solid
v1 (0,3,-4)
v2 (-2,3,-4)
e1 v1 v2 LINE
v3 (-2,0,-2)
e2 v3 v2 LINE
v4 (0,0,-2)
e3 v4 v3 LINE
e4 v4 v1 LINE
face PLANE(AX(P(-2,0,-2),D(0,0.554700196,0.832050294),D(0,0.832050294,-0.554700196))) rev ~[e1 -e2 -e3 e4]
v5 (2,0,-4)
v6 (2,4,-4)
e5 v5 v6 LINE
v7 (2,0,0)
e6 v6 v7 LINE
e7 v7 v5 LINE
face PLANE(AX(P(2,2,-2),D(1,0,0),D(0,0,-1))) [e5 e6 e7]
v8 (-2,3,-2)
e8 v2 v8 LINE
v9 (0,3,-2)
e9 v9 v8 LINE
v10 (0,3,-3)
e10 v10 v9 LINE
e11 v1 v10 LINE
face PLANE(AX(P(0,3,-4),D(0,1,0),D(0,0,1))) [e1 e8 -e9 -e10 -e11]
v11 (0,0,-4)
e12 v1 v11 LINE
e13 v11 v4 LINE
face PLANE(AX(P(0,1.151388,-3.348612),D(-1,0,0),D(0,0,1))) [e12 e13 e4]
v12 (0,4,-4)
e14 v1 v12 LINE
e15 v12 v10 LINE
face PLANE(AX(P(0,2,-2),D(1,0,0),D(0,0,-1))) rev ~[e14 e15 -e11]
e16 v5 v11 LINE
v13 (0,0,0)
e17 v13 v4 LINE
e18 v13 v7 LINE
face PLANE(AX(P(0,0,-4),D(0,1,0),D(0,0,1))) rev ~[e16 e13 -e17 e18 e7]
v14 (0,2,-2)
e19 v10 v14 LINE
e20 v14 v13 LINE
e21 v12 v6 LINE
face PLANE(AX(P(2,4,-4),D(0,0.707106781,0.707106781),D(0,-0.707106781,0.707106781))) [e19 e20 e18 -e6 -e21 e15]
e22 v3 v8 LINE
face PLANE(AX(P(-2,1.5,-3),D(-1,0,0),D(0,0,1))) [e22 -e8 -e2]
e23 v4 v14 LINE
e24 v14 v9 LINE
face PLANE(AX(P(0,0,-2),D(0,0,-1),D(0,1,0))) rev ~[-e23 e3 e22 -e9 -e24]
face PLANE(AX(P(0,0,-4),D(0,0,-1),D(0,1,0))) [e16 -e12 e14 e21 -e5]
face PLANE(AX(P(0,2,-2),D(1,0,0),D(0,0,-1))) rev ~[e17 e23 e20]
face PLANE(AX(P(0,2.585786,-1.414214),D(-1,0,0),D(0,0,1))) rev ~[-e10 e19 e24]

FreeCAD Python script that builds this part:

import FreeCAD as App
import Part
import Sketcher

V = App.Vector

doc = App.newDocument("Part")
params = doc.addObject("Spreadsheet::Sheet", "Params")
for row, (alias, value) in enumerate([
    ("sketch1_width", "4 mm"),
    ("pad1_length", "2 mm"),
    ("sketch2_width", "3 mm"),
    ("sketch2_height", "2 mm"),
    ("pad2_length", "2 mm"),
    ("sketch3_width", "3 mm"),
    ("sketch3_height", "2 mm"),
    ("pocket1_length", "2 mm"),
    ("sketch4_width", "4 mm"),
    ("pocket2_length", "2 mm"),
], start=1):
    params.set(f"A{row}", alias)
    params.set(f"B{row}", "=" + value)
    params.setAlias(f"B{row}", alias)

body = doc.addObject("PartDesign::Body", "Body")

# Sketch on YZ plane
sketch1 = body.newObject("Sketcher::SketchObject", "Sketch")
sketch1.AttachmentSupport = (doc.getObject("YZ_Plane"), [""])
sketch1.MapMode = "FlatFace"
sketch1.addGeometry([
    Part.LineSegment(V(4, 0, 0), V(0, 0, 0)),
    Part.LineSegment(V(0, 0, 0), V(0, -4, 0)),
    Part.LineSegment(V(0, -4, 0), V(4, -4, 0)),
    Part.LineSegment(V(4, -4, 0), V(4, 0, 0)),
], False)
sketch1.addConstraint([
    Sketcher.Constraint("Coincident", 0, 2, 1, 1),
    Sketcher.Constraint("Coincident", 1, 2, 2, 1),
    Sketcher.Constraint("Coincident", 2, 2, 3, 1),
    Sketcher.Constraint("Coincident", 3, 2, 0, 1),
    Sketcher.Constraint("Horizontal", 0),
    Sketcher.Constraint("Vertical", 1),
    Sketcher.Constraint("Horizontal", 2),
    Sketcher.Constraint("Vertical", 3),
    Sketcher.Constraint("Coincident", 0, 2, -1, 1),
    Sketcher.Constraint("Equal", 2, 1),
    Sketcher.Constraint("DistanceX", 0, 2, 0, 1, 4.0),
])
sketch1.setExpression("Constraints[10]", "Params.sketch1_width")
pad1 = body.newObject("PartDesign::Pad", "Pad")
pad1.Profile = sketch1
pad1.setExpression("Length", "Params.pad1_length")

# Sketch on YZ plane
sketch2 = body.newObject("Sketcher::SketchObject", "Sketch001")
sketch2.AttachmentSupport = (doc.getObject("YZ_Plane"), [""])
sketch2.MapMode = "FlatFace"
sketch2.addGeometry([
    Part.LineSegment(V(3, -4, 0), V(0, -4, 0)),
    Part.LineSegment(V(0, -4, 0), V(0, -2, 0)),
    Part.LineSegment(V(0, -2, 0), V(3, -2, 0)),
    Part.LineSegment(V(3, -2, 0), V(3, -4, 0)),
], False)
sketch2.addConstraint([
    Sketcher.Constraint("Coincident", 0, 2, 1, 1),
    Sketcher.Constraint("Coincident", 1, 2, 2, 1),
    Sketcher.Constraint("Coincident", 2, 2, 3, 1),
    Sketcher.Constraint("Coincident", 3, 2, 0, 1),
    Sketcher.Constraint("Horizontal", 0),
    Sketcher.Constraint("Vertical", 1),
    Sketcher.Constraint("Horizontal", 2),
    Sketcher.Constraint("Vertical", 3),
    Sketcher.Constraint("PointOnObject", 0, 2, -2),
    Sketcher.Constraint("DistanceX", 0, 2, 0, 1, 3.0),
    Sketcher.Constraint("DistanceY", 1, 1, 1, 2, 2.0),
    Sketcher.Constraint("DistanceY", 0, 2, -1, 1, 4.0),
])
sketch2.setExpression("Constraints[9]", "Params.sketch2_width")
sketch2.setExpression("Constraints[10]", "Params.sketch2_height")
pad2 = body.newObject("PartDesign::Pad", "Pad001")
pad2.Profile = sketch2
pad2.setExpression("Length", "Params.pad2_length")
pad2.Reversed = True

# Sketch on YZ plane
sketch3 = body.newObject("Sketcher::SketchObject", "Sketch002")
sketch3.AttachmentSupport = (doc.getObject("YZ_Plane"), [""])
sketch3.MapMode = "FlatFace"
sketch3.AttachmentOffset = App.Placement(V(0, 0, -2), App.Rotation())
sketch3.addGeometry([
    Part.LineSegment(V(0, -2, 0), V(3, -4, 0)),
    Part.LineSegment(V(3, -4, 0), V(0, -4, 0)),
    Part.LineSegment(V(0, -4, 0), V(0, -2, 0)),
], False)
sketch3.addConstraint([
    Sketcher.Constraint("Coincident", 0, 2, 1, 1),
    Sketcher.Constraint("Coincident", 1, 2, 2, 1),
    Sketcher.Constraint("Coincident", 2, 2, 0, 1),
    Sketcher.Constraint("Horizontal", 1),
    Sketcher.Constraint("Vertical", 2),
    Sketcher.Constraint("PointOnObject", 1, 2, -2),
    Sketcher.Constraint("DistanceX", 1, 2, 1, 1, 3.0),
    Sketcher.Constraint("DistanceY", 2, 1, 2, 2, 2.0),
    Sketcher.Constraint("DistanceY", 0, 2, -1, 1, 4.0),
])
sketch3.setExpression("Constraints[6]", "Params.sketch3_width")
sketch3.setExpression("Constraints[7]", "Params.sketch3_height")
pocket1 = body.newObject("PartDesign::Pocket", "Pocket")
pocket1.Profile = sketch3
pocket1.setExpression("Length", "Params.pocket1_length")
pocket1.Reversed = True

# Sketch on YZ plane
sketch4 = body.newObject("Sketcher::SketchObject", "Sketch003")
sketch4.AttachmentSupport = (doc.getObject("YZ_Plane"), [""])
sketch4.MapMode = "FlatFace"
sketch4.AttachmentOffset = App.Placement(V(0, 0, 2), App.Rotation())
sketch4.addGeometry([
    Part.LineSegment(V(0, 0, 0), V(4, -4, 0)),
    Part.LineSegment(V(4, -4, 0), V(4, 0, 0)),
    Part.LineSegment(V(4, 0, 0), V(0, 0, 0)),
], False)
sketch4.addConstraint([
    Sketcher.Constraint("Coincident", 0, 2, 1, 1),
    Sketcher.Constraint("Coincident", 1, 2, 2, 1),
    Sketcher.Constraint("Coincident", 2, 2, 0, 1),
    Sketcher.Constraint("Vertical", 1),
    Sketcher.Constraint("Horizontal", 2),
    Sketcher.Constraint("Coincident", 2, 2, -1, 1),
    Sketcher.Constraint("Equal", 2, 1),
    Sketcher.Constraint("DistanceX", 2, 2, 2, 1, 4.0),
])
sketch4.setExpression("Constraints[7]", "Params.sketch4_width")
pocket2 = body.newObject("PartDesign::Pocket", "Pocket001")
pocket2.Profile = sketch4
pocket2.setExpression("Length", "Params.pocket2_length")

doc.recompute()
